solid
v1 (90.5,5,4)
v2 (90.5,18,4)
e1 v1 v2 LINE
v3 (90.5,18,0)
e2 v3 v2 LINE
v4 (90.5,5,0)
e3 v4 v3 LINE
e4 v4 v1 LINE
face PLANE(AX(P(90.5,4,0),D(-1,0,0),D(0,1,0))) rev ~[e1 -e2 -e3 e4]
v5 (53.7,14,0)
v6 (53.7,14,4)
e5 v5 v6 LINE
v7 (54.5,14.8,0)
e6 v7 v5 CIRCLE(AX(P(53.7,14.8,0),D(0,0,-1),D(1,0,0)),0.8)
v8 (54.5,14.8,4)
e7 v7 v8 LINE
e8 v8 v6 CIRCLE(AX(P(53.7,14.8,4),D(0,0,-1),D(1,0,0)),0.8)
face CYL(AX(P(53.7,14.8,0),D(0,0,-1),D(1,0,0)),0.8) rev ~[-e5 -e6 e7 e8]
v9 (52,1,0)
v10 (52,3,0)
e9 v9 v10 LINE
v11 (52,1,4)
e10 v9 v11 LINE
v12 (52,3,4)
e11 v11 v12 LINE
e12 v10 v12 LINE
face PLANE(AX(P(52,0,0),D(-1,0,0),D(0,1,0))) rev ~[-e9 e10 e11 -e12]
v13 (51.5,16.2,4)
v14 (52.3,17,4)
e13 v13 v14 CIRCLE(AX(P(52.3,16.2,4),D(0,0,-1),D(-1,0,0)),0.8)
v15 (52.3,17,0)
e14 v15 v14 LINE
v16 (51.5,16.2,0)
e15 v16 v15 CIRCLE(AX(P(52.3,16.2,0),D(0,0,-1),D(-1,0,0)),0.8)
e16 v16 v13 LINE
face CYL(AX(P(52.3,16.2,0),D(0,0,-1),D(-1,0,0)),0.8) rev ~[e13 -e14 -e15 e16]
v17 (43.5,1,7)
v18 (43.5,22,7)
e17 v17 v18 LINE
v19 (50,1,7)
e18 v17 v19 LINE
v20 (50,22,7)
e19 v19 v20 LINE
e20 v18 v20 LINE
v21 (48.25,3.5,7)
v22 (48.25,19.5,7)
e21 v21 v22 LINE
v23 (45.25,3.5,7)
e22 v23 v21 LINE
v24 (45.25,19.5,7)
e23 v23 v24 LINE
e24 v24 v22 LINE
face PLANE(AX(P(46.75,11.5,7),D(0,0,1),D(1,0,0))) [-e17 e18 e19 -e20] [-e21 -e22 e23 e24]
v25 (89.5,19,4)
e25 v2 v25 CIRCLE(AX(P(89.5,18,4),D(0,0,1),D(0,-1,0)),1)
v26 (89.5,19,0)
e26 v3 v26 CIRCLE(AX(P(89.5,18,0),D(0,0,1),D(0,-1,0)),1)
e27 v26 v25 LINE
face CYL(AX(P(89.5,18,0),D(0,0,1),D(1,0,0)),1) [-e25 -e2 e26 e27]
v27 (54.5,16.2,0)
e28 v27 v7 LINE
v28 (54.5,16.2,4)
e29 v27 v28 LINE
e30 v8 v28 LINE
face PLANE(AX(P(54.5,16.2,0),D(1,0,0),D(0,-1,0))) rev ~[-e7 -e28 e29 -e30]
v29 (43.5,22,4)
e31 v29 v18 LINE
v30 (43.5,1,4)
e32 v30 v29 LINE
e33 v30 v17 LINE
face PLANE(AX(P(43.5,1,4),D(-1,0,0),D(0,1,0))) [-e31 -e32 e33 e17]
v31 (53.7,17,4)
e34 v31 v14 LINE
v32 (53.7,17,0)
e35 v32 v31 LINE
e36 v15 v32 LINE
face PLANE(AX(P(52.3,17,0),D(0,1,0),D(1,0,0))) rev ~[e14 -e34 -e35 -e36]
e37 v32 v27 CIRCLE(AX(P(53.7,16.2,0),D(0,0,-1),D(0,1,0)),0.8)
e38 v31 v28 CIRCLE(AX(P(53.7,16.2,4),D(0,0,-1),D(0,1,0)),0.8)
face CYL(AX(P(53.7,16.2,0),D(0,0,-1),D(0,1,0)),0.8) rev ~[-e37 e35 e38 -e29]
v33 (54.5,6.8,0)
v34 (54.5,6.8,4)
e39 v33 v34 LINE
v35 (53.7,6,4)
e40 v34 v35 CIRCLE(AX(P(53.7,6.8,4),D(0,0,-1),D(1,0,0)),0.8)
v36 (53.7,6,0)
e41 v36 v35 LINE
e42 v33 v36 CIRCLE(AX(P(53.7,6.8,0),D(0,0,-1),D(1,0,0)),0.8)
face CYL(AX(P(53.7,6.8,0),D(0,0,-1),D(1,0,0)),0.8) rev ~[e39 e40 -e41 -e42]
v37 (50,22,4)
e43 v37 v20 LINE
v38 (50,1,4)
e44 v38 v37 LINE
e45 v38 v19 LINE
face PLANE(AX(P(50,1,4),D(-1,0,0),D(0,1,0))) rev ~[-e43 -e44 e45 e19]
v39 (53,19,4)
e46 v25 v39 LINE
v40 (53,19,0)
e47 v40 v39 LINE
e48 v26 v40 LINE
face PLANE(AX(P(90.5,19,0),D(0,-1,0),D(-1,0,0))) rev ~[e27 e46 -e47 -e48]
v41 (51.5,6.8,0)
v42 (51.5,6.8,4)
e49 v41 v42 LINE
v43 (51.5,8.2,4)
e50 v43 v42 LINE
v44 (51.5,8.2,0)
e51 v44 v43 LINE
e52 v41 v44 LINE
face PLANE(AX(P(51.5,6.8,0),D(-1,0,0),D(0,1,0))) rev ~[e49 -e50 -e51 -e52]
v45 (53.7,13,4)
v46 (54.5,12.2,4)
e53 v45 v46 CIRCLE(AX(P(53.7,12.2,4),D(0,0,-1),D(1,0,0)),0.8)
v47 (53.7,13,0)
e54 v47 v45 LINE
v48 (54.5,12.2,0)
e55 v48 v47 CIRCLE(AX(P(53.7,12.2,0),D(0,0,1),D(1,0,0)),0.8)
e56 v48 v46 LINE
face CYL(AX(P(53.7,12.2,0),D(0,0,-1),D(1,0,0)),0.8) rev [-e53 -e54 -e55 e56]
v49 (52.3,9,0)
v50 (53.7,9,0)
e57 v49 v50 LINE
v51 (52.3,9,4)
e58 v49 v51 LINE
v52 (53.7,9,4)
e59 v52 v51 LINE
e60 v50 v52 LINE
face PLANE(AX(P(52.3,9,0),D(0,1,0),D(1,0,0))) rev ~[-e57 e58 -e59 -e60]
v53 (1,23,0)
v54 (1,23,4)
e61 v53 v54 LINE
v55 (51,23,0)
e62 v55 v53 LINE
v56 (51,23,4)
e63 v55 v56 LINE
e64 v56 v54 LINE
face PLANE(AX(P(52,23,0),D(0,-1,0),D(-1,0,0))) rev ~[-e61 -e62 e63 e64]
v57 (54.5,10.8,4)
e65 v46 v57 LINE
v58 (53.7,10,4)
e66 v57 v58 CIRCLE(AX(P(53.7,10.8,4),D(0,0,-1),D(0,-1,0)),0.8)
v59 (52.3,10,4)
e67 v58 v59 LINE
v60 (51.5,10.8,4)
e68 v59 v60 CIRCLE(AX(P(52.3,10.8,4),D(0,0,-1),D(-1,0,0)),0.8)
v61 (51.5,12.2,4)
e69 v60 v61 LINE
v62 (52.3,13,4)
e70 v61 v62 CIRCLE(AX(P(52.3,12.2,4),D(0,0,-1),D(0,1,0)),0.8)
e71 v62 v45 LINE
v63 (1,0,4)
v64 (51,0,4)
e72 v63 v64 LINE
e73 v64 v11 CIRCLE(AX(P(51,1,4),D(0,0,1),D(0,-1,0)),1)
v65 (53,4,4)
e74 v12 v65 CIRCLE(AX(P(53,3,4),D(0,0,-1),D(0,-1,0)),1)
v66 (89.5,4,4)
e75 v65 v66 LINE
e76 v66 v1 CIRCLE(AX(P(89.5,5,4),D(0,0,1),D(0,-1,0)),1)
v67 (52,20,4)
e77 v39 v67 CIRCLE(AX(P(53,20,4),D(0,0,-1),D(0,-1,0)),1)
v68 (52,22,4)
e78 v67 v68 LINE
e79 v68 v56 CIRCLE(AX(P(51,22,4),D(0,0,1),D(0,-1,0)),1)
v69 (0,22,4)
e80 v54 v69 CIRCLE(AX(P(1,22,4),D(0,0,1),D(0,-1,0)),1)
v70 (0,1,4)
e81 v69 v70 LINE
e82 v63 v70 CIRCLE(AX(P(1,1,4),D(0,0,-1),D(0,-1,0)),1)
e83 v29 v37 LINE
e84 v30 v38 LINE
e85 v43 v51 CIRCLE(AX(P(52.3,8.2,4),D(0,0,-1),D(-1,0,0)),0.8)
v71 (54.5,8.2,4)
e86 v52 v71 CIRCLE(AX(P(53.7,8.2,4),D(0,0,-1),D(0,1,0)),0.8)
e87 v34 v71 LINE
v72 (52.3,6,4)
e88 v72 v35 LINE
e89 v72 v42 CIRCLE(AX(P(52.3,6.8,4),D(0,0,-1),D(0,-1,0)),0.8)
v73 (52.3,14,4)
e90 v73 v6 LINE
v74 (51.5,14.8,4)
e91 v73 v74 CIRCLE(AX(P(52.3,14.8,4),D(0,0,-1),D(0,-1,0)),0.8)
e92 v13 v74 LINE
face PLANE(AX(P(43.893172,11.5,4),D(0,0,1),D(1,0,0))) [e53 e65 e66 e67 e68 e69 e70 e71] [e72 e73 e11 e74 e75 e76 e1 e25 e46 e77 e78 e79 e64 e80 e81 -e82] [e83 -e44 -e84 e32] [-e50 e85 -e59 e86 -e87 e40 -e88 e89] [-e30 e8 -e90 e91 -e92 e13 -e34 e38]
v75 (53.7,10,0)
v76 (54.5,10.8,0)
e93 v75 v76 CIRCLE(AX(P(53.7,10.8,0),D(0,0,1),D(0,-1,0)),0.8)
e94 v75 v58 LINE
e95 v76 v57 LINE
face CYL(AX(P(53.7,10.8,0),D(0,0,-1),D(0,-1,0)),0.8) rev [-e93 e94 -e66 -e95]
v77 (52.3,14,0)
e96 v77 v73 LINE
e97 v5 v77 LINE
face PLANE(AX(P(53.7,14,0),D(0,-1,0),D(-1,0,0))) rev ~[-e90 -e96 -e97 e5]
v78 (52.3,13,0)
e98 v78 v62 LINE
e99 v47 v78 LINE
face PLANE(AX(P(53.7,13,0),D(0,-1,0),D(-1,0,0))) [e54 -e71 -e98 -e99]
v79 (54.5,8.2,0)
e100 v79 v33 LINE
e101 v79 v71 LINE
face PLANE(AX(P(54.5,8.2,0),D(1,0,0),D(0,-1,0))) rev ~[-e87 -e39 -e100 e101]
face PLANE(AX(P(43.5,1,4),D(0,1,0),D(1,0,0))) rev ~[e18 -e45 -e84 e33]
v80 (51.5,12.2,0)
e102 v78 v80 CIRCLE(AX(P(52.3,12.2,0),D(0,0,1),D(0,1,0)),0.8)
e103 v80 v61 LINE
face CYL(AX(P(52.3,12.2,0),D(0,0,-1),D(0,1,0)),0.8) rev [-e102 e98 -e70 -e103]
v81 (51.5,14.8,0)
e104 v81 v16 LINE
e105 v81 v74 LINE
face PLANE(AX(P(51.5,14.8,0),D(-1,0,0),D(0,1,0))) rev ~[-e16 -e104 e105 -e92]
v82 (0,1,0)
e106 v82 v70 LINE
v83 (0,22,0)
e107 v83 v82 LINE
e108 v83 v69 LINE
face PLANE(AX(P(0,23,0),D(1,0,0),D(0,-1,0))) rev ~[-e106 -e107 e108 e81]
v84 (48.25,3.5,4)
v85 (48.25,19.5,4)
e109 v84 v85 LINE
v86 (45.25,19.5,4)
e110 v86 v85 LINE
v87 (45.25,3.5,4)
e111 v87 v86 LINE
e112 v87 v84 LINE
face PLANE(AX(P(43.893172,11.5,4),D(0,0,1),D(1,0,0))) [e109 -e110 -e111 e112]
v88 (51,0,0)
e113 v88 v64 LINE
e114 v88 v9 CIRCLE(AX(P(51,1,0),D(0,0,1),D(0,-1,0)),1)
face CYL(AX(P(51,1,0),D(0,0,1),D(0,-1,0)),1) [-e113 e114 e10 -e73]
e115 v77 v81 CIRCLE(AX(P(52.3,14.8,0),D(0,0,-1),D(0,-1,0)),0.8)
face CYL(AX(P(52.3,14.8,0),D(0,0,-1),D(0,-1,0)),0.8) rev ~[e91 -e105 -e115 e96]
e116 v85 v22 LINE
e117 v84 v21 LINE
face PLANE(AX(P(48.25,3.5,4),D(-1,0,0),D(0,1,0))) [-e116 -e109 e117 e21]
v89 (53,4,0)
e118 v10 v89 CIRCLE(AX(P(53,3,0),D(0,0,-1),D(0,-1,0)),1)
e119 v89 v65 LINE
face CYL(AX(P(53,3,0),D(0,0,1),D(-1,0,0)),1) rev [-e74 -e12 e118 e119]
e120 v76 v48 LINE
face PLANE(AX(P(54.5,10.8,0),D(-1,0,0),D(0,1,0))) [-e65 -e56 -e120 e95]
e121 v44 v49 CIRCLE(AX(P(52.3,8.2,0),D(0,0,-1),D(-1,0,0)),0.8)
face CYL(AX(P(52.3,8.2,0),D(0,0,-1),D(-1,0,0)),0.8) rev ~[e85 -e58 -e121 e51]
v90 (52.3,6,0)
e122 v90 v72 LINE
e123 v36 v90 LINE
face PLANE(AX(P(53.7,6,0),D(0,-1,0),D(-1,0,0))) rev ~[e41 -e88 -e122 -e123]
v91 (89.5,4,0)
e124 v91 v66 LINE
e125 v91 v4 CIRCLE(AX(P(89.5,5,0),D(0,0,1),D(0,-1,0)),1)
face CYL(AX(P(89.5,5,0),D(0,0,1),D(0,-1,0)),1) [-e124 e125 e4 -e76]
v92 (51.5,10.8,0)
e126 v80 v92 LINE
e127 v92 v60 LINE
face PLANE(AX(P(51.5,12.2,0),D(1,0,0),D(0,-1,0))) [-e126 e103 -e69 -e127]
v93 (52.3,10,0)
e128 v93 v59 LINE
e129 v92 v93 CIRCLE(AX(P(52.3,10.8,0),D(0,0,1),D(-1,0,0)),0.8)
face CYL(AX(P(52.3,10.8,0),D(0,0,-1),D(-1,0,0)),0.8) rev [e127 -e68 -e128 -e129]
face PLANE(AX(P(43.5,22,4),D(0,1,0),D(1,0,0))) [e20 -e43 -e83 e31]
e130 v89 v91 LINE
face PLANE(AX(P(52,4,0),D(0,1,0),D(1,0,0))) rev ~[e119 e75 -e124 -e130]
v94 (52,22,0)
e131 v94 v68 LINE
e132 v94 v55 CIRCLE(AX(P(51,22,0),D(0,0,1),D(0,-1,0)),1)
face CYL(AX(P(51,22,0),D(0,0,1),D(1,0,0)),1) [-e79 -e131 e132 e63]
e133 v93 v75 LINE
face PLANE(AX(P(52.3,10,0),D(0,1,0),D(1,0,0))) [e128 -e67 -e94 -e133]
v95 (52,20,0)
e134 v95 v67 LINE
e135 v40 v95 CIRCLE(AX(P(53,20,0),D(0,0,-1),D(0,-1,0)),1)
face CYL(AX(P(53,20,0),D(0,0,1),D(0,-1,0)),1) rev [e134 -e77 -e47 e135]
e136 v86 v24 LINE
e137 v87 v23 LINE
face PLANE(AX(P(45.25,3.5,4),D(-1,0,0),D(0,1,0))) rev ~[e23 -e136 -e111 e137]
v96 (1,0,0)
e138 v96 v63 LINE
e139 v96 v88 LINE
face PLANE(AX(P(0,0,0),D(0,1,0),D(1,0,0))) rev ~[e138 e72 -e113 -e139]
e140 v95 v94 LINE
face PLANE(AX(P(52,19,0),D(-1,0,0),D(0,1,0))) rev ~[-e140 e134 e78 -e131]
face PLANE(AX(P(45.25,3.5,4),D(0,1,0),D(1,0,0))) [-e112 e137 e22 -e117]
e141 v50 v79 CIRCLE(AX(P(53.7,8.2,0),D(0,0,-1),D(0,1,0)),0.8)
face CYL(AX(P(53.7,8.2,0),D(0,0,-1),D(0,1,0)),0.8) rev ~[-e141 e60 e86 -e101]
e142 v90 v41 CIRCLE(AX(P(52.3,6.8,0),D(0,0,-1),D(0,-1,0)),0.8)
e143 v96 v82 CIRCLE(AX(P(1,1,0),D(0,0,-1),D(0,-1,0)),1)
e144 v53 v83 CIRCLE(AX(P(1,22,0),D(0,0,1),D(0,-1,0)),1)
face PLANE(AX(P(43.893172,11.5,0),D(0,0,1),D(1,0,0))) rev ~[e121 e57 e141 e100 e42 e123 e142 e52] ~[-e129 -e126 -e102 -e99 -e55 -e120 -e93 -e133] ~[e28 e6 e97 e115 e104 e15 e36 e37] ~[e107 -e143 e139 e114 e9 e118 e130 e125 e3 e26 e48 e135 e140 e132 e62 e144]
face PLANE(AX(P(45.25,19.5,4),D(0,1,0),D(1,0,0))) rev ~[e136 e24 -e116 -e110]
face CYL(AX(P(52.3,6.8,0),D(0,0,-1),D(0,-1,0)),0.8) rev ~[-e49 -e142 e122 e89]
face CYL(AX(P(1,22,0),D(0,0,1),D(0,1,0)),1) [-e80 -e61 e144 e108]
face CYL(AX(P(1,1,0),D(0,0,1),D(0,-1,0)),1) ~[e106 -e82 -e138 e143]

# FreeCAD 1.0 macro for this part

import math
import FreeCAD as App
import Part
import Sketcher


def edges_at(feature, points):
    """Names of the edges that pass closest to the given points."""
    edges = feature.Shape.Edges
    near = lambda p: min(range(len(edges)), key=lambda i: edges[i].distToShape(Part.Vertex(*p))[0])
    return sorted({f"Edge{near(p) + 1}" for p in points})


def add_polygon(sketch, points):
    """Adds a closed chain of lines whose ends are joined by coincident constraints."""
    first, n = sketch.GeometryCount, len(points)
    for a, b in zip(points, points[1:] + points[:1]):
        sketch.addGeometry(Part.LineSegment(App.Vector(*a, 0), App.Vector(*b, 0)), False)
    for i in range(n):
        sketch.addConstraint(Sketcher.Constraint("Coincident", first + i, 2, first + (i + 1) % n, 1))

doc = App.newDocument("Part")
body = doc.addObject("PartDesign::Body", "Body")

# Sketch on XY plane
sketch1 = body.newObject("Sketcher::SketchObject", "Sketch")
sketch1.AttachmentSupport = (doc.getObject("XY_Plane"), [""])
sketch1.MapMode = "FlatFace"
add_polygon(sketch1, [(0, 0), (52, 0), (52, 4), (90.5, 4), (90.5, 19), (52, 19), (52, 23), (0, 23)])  # lines 0-7
sketch1.addConstraint(Sketcher.Constraint("Horizontal", 0))
sketch1.addConstraint(Sketcher.Constraint("Vertical", 1))
sketch1.addConstraint(Sketcher.Constraint("Horizontal", 2))
sketch1.addConstraint(Sketcher.Constraint("Vertical", 3))
sketch1.addConstraint(Sketcher.Constraint("Horizontal", 4))
sketch1.addConstraint(Sketcher.Constraint("Vertical", 5))
sketch1.addConstraint(Sketcher.Constraint("Horizontal", 6))
sketch1.addConstraint(Sketcher.Constraint("Vertical", 7))
sketch1.addConstraint(Sketcher.Constraint("Coincident", 7, 2, -1, 1))
sketch1.addConstraint(Sketcher.Constraint("Vertical", 1, 2, 4, 2))
sketch1.addConstraint(Sketcher.Constraint("Equal", 1, 5))
sketch1.addConstraint(Sketcher.Constraint("DistanceX", 0, 1, 0, 2, 52.0))
sketch1.addConstraint(Sketcher.Constraint("DistanceY", 1, 1, 1, 2, 4.0))
sketch1.addConstraint(Sketcher.Constraint("DistanceY", 3, 1, 3, 2, 15.0))
sketch1.addConstraint(Sketcher.Constraint("DistanceX", 2, 1, 2, 2, 38.5))
pad1 = body.newObject("PartDesign::Pad", "Pad")
pad1.Profile = sketch1
pad1.Length = 4
doc.recompute()

fillet = body.newObject("PartDesign::Fillet", "Fillet")
fillet.Base = (pad1, edges_at(pad1, [
    (0, 23, 2),
    (52, 23, 2),
    (52, 19, 2),
    (90.5, 19, 2),
    (90.5, 4, 2),
    (52, 4, 2),
    (52, 0, 2),
    (0, 0, 2),
]))
fillet.Radius = 1

# Sketch on XY plane
sketch2 = body.newObject("Sketcher::SketchObject", "Sketch001")
sketch2.AttachmentSupport = (doc.getObject("XY_Plane"), [""])
sketch2.MapMode = "FlatFace"
sketch2.AttachmentOffset = App.Placement(App.Vector(0, 0, 4), App.Rotation())
add_polygon(sketch2, [(43.5, 22), (43.5, 1), (50, 1), (50, 22)])  # lines 0-3
add_polygon(sketch2, [(48.2, 3.5), (45.2, 3.5), (45.2, 19.5), (48.2, 19.5)])  # lines 4-7
sketch2.addConstraint(Sketcher.Constraint("Vertical", 0))
sketch2.addConstraint(Sketcher.Constraint("Horizontal", 1))
sketch2.addConstraint(Sketcher.Constraint("Vertical", 2))
sketch2.addConstraint(Sketcher.Constraint("Horizontal", 3))
sketch2.addConstraint(Sketcher.Constraint("Horizontal", 4))
sketch2.addConstraint(Sketcher.Constraint("Vertical", 5))
sketch2.addConstraint(Sketcher.Constraint("Horizontal", 6))
sketch2.addConstraint(Sketcher.Constraint("Vertical", 7))
sketch2.addConstraint(Sketcher.Constraint("DistanceX", 4, 2, 4, 1, 3.0))
sketch2.addConstraint(Sketcher.Constraint("DistanceY", 0, 2, 0, 1, 21.0))
sketch2.addConstraint(Sketcher.Constraint("DistanceY", 5, 1, 5, 2, 16.0))
sketch2.addConstraint(Sketcher.Constraint("DistanceX", 1, 1, 1, 2, 6.5))
sketch2.addConstraint(Sketcher.Constraint("DistanceY", -1, 1, 0, 2, 1.0))
sketch2.addConstraint(Sketcher.Constraint("DistanceX", -1, 1, 1, 2, 50.0))
sketch2.addConstraint(Sketcher.Constraint("DistanceY", -1, 1, 4, 2, 3.5))
sketch2.addConstraint(Sketcher.Constraint("DistanceX", -1, 1, 4, 2, 45.25))
pad2 = body.newObject("PartDesign::Pad", "Pad001")
pad2.Profile = sketch2
pad2.Length = 3

# Sketch on XY plane
sketch3 = body.newObject("Sketcher::SketchObject", "Sketch002")
sketch3.AttachmentSupport = (doc.getObject("XY_Plane"), [""])
sketch3.MapMode = "FlatFace"
sketch3.addGeometry(Part.LineSegment(App.Vector(53.7, 14, 0), App.Vector(52.3, 14, 0)), False)
sketch3.addGeometry(Part.ArcOfCircle(Part.Circle(App.Vector(52.3, 14.8, 0), App.Vector(0, 0, 1), 0.8), math.radians(180), math.radians(270)), False)
sketch3.addGeometry(Part.LineSegment(App.Vector(51.5, 14.8, 0), App.Vector(51.5, 16.2, 0)), False)
sketch3.addGeometry(Part.ArcOfCircle(Part.Circle(App.Vector(52.3, 16.2, 0), App.Vector(0, 0, 1), 0.8), math.radians(90), math.radians(180)), False)
sketch3.addGeometry(Part.LineSegment(App.Vector(52.3, 17, 0), App.Vector(53.7, 17, 0)), False)
sketch3.addGeometry(Part.ArcOfCircle(Part.Circle(App.Vector(53.7, 16.2, 0), App.Vector(0, 0, 1), 0.8), math.radians(0), math.radians(90)), False)
sketch3.addGeometry(Part.LineSegment(App.Vector(54.5, 16.2, 0), App.Vector(54.5, 14.8, 0)), False)
sketch3.addGeometry(Part.ArcOfCircle(Part.Circle(App.Vector(53.7, 14.8, 0), App.Vector(0, 0, 1), 0.8), math.radians(-90), math.radians(0)), False)
sketch3.addGeometry(Part.LineSegment(App.Vector(53.7, 10, 0), App.Vector(52.3, 10, 0)), False)
sketch3.addGeometry(Part.ArcOfCircle(Part.Circle(App.Vector(52.3, 10.8, 0), App.Vector(0, 0, 1), 0.8), math.radians(180), math.radians(270)), False)
sketch3.addGeometry(Part.LineSegment(App.Vector(51.5, 10.8, 0), App.Vector(51.5, 12.2, 0)), False)
sketch3.addGeometry(Part.ArcOfCircle(Part.Circle(App.Vector(52.3, 12.2, 0), App.Vector(0, 0, 1), 0.8), math.radians(90), math.radians(180)), False)
sketch3.addGeometry(Part.LineSegment(App.Vector(52.3, 13, 0), App.Vector(53.7, 13, 0)), False)
sketch3.addGeometry(Part.ArcOfCircle(Part.Circle(App.Vector(53.7, 12.2, 0), App.Vector(0, 0, 1), 0.8), math.radians(0), math.radians(90)), False)
sketch3.addGeometry(Part.LineSegment(App.Vector(54.5, 12.2, 0), App.Vector(54.5, 10.8, 0)), False)
sketch3.addGeometry(Part.ArcOfCircle(Part.Circle(App.Vector(53.7, 10.8, 0), App.Vector(0, 0, 1), 0.8), math.radians(-90), math.radians(0)), False)
sketch3.addGeometry(Part.LineSegment(App.Vector(53.7, 6, 0), App.Vector(52.3, 6, 0)), False)
sketch3.addGeometry(Part.ArcOfCircle(Part.Circle(App.Vector(52.3, 6.8, 0), App.Vector(0, 0, 1), 0.8), math.radians(180), math.radians(270)), False)
sketch3.addGeometry(Part.LineSegment(App.Vector(51.5, 6.8, 0), App.Vector(51.5, 8.2, 0)), False)
sketch3.addGeometry(Part.ArcOfCircle(Part.Circle(App.Vector(52.3, 8.2, 0), App.Vector(0, 0, 1), 0.8), math.radians(90), math.radians(180)), False)
sketch3.addGeometry(Part.LineSegment(App.Vector(52.3, 9, 0), App.Vector(53.7, 9, 0)), False)
sketch3.addGeometry(Part.ArcOfCircle(Part.Circle(App.Vector(53.7, 8.2, 0), App.Vector(0, 0, 1), 0.8), math.radians(0), math.radians(90)), False)
sketch3.addGeometry(Part.LineSegment(App.Vector(54.5, 8.2, 0), App.Vector(54.5, 6.8, 0)), False)
sketch3.addGeometry(Part.ArcOfCircle(Part.Circle(App.Vector(53.7, 6.8, 0), App.Vector(0, 0, 1), 0.8), math.radians(-90), math.radians(0)), False)
sketch3.addConstraint(Sketcher.Constraint("Tangent", 0, 2, 1, 2))
sketch3.addConstraint(Sketcher.Constraint("Tangent", 1, 1, 2, 1))
sketch3.addConstraint(Sketcher.Constraint("Tangent", 2, 2, 3, 2))
sketch3.addConstraint(Sketcher.Constraint("Tangent", 3, 1, 4, 1))
sketch3.addConstraint(Sketcher.Constraint("Tangent", 4, 2, 5, 2))
sketch3.addConstraint(Sketcher.Constraint("Tangent", 5, 1, 6, 1))
sketch3.addConstraint(Sketcher.Constraint("Tangent", 6, 2, 7, 2))
sketch3.addConstraint(Sketcher.Constraint("Tangent", 7, 1, 0, 1))
sketch3.addConstraint(Sketcher.Constraint("Tangent", 8, 2, 9, 2))
sketch3.addConstraint(Sketcher.Constraint("Tangent", 9, 1, 10, 1))
sketch3.addConstraint(Sketcher.Constraint("Tangent", 10, 2, 11, 2))
sketch3.addConstraint(Sketcher.Constraint("Tangent", 11, 1, 12, 1))
sketch3.addConstraint(Sketcher.Constraint("Tangent", 12, 2, 13, 2))
sketch3.addConstraint(Sketcher.Constraint("Tangent", 13, 1, 14, 1))
sketch3.addConstraint(Sketcher.Constraint("Tangent", 14, 2, 15, 2))
sketch3.addConstraint(Sketcher.Constraint("Tangent", 15, 1, 8, 1))
sketch3.addConstraint(Sketcher.Constraint("Tangent", 16, 2, 17, 2))
sketch3.addConstraint(Sketcher.Constraint("Tangent", 17, 1, 18, 1))
sketch3.addConstraint(Sketcher.Constraint("Tangent", 18, 2, 19, 2))
sketch3.addConstraint(Sketcher.Constraint("Tangent", 19, 1, 20, 1))
sketch3.addConstraint(Sketcher.Constraint("Tangent", 20, 2, 21, 2))
sketch3.addConstraint(Sketcher.Constraint("Tangent", 21, 1, 22, 1))
sketch3.addConstraint(Sketcher.Constraint("Tangent", 22, 2, 23, 2))
sketch3.addConstraint(Sketcher.Constraint("Tangent", 23, 1, 16, 1))
sketch3.addConstraint(Sketcher.Constraint("Horizontal", 0))
sketch3.addConstraint(Sketcher.Constraint("Vertical", 2))
sketch3.addConstraint(Sketcher.Constraint("Horizontal", 4))
sketch3.addConstraint(Sketcher.Constraint("Vertical", 6))
sketch3.addConstraint(Sketcher.Constraint("Horizontal", 8))
sketch3.addConstraint(Sketcher.Constraint("Vertical", 10))
sketch3.addConstraint(Sketcher.Constraint("Horizontal", 12))
sketch3.addConstraint(Sketcher.Constraint("Vertical", 14))
sketch3.addConstraint(Sketcher.Constraint("Horizontal", 16))
sketch3.addConstraint(Sketcher.Constraint("Vertical", 18))
sketch3.addConstraint(Sketcher.Constraint("Horizontal", 20))
sketch3.addConstraint(Sketcher.Constraint("Vertical", 22))
sketch3.addConstraint(Sketcher.Constraint("Equal", 1, 3))
sketch3.addConstraint(Sketcher.Constraint("Equal", 3, 5))
sketch3.addConstraint(Sketcher.Constraint("Equal", 5, 7))
sketch3.addConstraint(Sketcher.Constraint("Equal", 7, 9))
sketch3.addConstraint(Sketcher.Constraint("Equal", 9, 11))
sketch3.addConstraint(Sketcher.Constraint("Equal", 11, 13))
sketch3.addConstraint(Sketcher.Constraint("Equal", 13, 15))
sketch3.addConstraint(Sketcher.Constraint("Equal", 15, 17))
sketch3.addConstraint(Sketcher.Constraint("Equal", 17, 19))
sketch3.addConstraint(Sketcher.Constraint("Equal", 19, 21))
sketch3.addConstraint(Sketcher.Constraint("Equal", 21, 23))
sketch3.addConstraint(Sketcher.Constraint("Vertical", 3, 3, 9, 3))
sketch3.addConstraint(Sketcher.Constraint("Vertical", 7, 3, 13, 3))
sketch3.addConstraint(Sketcher.Constraint("Vertical", 11, 3, 17, 3))
sketch3.addConstraint(Sketcher.Constraint("Vertical", 15, 3, 21, 3))
sketch3.addConstraint(Sketcher.Constraint("Equal", 20, 2))
sketch3.addConstraint(Sketcher.Constraint("Equal", 6, 10))
sketch3.addConstraint(Sketcher.Constraint("Equal", 14, 18))
sketch3.addConstraint(Sketcher.Constraint("Radius", 1, 0.8))
sketch3.addConstraint(Sketcher.Constraint("DistanceX", 0, 2, 0, 1, 1.4))
sketch3.addConstraint(Sketcher.Constraint("DistanceY", -1, 1, 0, 2, 14.0))
sketch3.addConstraint(Sketcher.Constraint("DistanceY", -1, 1, 8, 2, 10.0))
sketch3.addConstraint(Sketcher.Constraint("DistanceY", -1, 1, 16, 2, 6.0))
sketch3.addConstraint(Sketcher.Constraint("DistanceX", -1, 1, 1, 3, 52.3))
pocket1 = body.newObject("PartDesign::Pocket", "Pocket")
pocket1.Profile = sketch3
pocket1.Type = "ThroughAll"
pocket1.Reversed = True

doc.recompute()
